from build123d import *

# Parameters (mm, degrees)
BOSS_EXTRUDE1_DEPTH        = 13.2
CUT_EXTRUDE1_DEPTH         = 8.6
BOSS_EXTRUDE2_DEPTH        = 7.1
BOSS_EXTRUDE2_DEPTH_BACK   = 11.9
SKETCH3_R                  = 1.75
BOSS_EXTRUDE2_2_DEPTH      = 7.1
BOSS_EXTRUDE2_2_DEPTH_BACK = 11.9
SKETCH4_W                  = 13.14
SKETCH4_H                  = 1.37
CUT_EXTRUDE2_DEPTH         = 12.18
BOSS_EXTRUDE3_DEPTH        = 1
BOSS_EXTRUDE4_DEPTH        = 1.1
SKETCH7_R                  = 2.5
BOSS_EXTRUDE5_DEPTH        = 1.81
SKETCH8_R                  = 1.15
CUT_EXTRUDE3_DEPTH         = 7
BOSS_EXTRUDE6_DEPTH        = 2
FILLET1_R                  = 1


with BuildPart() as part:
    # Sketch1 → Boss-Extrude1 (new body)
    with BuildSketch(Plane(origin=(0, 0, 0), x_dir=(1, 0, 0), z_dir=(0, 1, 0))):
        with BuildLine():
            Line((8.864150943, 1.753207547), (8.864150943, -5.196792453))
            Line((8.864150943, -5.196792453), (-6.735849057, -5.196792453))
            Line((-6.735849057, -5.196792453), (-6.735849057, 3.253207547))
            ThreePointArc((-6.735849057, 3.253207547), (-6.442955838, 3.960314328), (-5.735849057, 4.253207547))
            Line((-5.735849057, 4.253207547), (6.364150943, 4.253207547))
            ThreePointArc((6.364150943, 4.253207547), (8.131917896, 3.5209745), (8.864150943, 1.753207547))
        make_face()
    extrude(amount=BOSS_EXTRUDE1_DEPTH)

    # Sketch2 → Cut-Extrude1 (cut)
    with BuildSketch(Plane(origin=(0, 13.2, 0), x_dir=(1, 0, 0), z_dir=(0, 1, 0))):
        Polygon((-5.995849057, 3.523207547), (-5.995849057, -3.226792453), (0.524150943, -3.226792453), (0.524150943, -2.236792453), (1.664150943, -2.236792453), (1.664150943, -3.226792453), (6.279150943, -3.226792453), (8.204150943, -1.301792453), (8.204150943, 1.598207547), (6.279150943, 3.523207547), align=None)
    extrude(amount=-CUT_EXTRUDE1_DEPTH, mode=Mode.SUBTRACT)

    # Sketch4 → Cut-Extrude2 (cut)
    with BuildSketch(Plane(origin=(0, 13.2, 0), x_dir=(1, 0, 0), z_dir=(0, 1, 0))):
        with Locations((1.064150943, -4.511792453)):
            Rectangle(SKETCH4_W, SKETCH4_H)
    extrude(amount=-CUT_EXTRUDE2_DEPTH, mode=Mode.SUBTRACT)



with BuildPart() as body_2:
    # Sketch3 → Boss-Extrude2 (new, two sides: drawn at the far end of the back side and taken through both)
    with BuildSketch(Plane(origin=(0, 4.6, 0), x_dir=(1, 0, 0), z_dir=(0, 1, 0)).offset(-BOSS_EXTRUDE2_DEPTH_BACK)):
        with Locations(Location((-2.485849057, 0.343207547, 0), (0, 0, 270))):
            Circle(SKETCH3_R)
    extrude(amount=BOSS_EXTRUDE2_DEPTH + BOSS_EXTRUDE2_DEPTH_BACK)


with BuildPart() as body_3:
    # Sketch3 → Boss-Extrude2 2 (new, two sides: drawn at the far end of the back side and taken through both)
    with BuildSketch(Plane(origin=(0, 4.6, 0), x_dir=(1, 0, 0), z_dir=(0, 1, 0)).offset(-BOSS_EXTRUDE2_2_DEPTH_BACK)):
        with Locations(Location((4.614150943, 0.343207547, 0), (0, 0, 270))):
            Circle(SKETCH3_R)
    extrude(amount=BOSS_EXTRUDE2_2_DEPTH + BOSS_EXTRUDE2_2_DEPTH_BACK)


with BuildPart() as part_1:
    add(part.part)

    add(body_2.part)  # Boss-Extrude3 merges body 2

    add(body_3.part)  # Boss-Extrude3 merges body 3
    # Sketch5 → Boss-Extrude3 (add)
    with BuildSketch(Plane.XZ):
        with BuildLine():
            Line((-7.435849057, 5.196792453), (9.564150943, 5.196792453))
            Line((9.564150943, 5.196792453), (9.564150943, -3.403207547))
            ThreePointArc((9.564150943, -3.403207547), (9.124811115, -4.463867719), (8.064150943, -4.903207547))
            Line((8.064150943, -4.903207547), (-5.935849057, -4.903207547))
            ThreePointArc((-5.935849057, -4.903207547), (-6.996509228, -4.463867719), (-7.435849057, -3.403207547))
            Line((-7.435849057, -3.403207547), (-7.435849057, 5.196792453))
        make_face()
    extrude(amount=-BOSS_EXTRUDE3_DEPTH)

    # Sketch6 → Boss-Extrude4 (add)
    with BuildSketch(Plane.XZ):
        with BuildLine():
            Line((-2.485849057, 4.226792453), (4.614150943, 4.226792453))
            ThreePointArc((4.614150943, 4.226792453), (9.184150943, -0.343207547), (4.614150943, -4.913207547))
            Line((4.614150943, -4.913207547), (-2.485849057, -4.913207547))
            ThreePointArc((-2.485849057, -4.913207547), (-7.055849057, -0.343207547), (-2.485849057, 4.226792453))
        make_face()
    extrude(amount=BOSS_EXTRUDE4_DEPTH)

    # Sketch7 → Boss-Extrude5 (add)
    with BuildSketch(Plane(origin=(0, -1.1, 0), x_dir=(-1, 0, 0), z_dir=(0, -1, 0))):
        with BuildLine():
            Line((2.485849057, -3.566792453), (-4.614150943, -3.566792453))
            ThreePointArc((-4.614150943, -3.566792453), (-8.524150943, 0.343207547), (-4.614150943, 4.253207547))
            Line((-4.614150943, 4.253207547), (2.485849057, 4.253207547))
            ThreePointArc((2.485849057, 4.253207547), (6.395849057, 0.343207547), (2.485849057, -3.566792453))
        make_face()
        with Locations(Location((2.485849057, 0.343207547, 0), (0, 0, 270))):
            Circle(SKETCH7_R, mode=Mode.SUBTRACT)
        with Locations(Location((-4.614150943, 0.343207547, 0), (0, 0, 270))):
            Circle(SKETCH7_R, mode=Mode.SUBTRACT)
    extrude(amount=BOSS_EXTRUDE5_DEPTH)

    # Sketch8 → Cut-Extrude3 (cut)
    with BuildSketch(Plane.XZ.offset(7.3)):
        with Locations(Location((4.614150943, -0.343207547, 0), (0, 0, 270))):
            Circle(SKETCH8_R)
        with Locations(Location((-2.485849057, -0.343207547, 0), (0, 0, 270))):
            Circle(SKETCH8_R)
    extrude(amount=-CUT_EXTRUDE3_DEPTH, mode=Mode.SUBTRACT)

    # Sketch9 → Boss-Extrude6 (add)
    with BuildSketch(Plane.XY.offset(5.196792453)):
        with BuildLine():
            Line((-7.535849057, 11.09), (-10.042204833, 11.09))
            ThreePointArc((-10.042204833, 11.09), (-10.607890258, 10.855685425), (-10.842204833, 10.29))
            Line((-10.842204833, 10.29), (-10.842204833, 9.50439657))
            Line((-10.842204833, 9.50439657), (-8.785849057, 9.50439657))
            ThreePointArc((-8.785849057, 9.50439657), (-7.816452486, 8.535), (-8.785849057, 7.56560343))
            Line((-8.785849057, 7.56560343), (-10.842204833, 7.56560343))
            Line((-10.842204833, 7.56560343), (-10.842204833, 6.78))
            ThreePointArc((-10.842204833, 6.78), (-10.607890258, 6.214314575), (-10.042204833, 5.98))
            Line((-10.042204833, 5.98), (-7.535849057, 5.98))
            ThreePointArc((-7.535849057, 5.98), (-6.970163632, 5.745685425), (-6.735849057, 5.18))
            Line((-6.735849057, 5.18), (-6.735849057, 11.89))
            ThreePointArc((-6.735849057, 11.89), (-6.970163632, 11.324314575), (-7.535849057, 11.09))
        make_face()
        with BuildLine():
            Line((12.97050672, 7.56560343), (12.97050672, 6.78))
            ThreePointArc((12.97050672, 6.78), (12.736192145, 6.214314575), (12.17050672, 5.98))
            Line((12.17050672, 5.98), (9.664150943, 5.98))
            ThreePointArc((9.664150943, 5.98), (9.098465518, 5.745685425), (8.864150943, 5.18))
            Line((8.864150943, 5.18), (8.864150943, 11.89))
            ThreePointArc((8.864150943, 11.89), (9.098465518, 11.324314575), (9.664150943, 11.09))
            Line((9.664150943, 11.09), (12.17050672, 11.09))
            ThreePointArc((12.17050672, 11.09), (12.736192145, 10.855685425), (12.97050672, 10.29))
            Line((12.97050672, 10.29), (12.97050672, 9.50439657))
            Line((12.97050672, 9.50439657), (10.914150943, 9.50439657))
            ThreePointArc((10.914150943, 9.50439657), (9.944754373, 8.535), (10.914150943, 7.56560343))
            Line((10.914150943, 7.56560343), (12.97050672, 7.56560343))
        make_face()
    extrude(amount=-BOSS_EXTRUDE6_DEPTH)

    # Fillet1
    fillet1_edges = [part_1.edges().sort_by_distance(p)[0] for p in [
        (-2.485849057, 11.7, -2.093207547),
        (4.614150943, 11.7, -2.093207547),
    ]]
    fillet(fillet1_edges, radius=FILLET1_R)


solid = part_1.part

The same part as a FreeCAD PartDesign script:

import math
import FreeCAD as App
import Part
import Sketcher


def edges_at(feature, points):
    """Names of the edges that pass closest to the given points."""
    edges = feature.Shape.Edges
    near = lambda p: min(range(len(edges)), key=lambda i: edges[i].distToShape(Part.Vertex(*p))[0])
    return sorted({f"Edge{near(p) + 1}" for p in points})


def add_polygon(sketch, points):
    """Adds a closed chain of lines whose ends are joined by coincident constraints."""
    first, n = sketch.GeometryCount, len(points)
    for a, b in zip(points, points[1:] + points[:1]):
        sketch.addGeometry(Part.LineSegment(App.Vector(*a, 0), App.Vector(*b, 0)), False)
    for i in range(n):
        sketch.addConstraint(Sketcher.Constraint("Coincident", first + i, 2, first + (i + 1) % n, 1))

doc = App.newDocument("Part")
body = doc.addObject("PartDesign::Body", "Body")

# Sketch on XZ plane
sketch1 = body.newObject("Sketcher::SketchObject", "Sketch")
sketch1.AttachmentSupport = (doc.getObject("XZ_Plane"), [""])
sketch1.MapMode = "FlatFace"
sketch1.addGeometry([
    Part.LineSegment(App.Vector(8.9, 5.2, 0), App.Vector(8.9, -1.8, 0)),  # 0
    Part.ArcOfCircle(Part.Circle(App.Vector(6.4, -1.8, 0), App.Vector(0, 0, 1), 2.5), math.radians(-90), math.radians(0)),  # 1
    Part.LineSegment(App.Vector(6.4, -4.3, 0), App.Vector(-5.7, -4.3, 0)),  # 2
    Part.ArcOfCircle(Part.Circle(App.Vector(-5.7, -3.3, 0), App.Vector(0, 0, 1), 1), math.radians(-180), math.radians(-90)),  # 3
    Part.LineSegment(App.Vector(-6.7, -3.3, 0), App.Vector(-6.7, 5.2, 0)),  # 4
    Part.LineSegment(App.Vector(-6.7, 5.2, 0), App.Vector(8.9, 5.2, 0)),  # 5
], False)
sketch1.addConstraint([
    Sketcher.Constraint("Tangent", 0, 2, 1, 2),
    Sketcher.Constraint("Tangent", 1, 1, 2, 1),
    Sketcher.Constraint("Tangent", 2, 2, 3, 2),
    Sketcher.Constraint("Tangent", 3, 1, 4, 1),
    Sketcher.Constraint("Coincident", 4, 2, 5, 1),
    Sketcher.Constraint("Coincident", 5, 2, 0, 1),
    Sketcher.Constraint("Vertical", 0),
    Sketcher.Constraint("Horizontal", 2),
    Sketcher.Constraint("Vertical", 4),
    Sketcher.Constraint("Horizontal", 5),
    Sketcher.Constraint("Radius", 3, 1.0),
    Sketcher.Constraint("Radius", 1, 2.5),
    Sketcher.Constraint("DistanceX", 2, 2, 2, 1, 12.1),
    Sketcher.Constraint("DistanceY", 0, 2, 0, 1, 6.95),
    Sketcher.Constraint("DistanceX", -1, 1, 1, 3, 6.364151),
    Sketcher.Constraint("DistanceY", 1, 3, -1, 1, 1.753208),
])
pad1 = body.newObject("PartDesign::Pad", "Pad")
pad1.Profile = sketch1
pad1.Length = 13.2
pad1.Reversed = True

# Sketch on XZ plane
sketch2 = body.newObject("Sketcher::SketchObject", "Sketch001")
sketch2.AttachmentSupport = (doc.getObject("XZ_Plane"), [""])
sketch2.MapMode = "FlatFace"
sketch2.AttachmentOffset = App.Placement(App.Vector(0, 0, -13.2), App.Rotation())
add_polygon(sketch2, [(-6, -3.5), (-6, 3.2), (0.5, 3.2), (0.5, 2.2), (1.7, 2.2), (1.7, 3.2), (6.3, 3.2), (8.2, 1.3), (8.2, -1.6), (6.3, -3.5)])  # lines 0-9
sketch2.addConstraint([
    Sketcher.Constraint("Vertical", 0),
    Sketcher.Constraint("Horizontal", 1),
    Sketcher.Constraint("Vertical", 2),
    Sketcher.Constraint("Horizontal", 3),
    Sketcher.Constraint("Vertical", 4),
    Sketcher.Constraint("Horizontal", 5),
    Sketcher.Constraint("Vertical", 7),
    Sketcher.Constraint("Horizontal", 9),
    Sketcher.Constraint("Perpendicular", 6, 8),
    Sketcher.Constraint("Horizontal", 1, 2, 4, 2),
    Sketcher.Constraint("Vertical", 5, 2, 8, 2),
    Sketcher.Constraint("Equal", 6, 8),
    Sketcher.Constraint("DistanceY", 7, 2, 7, 1, 2.9),
    Sketcher.Constraint("DistanceX", 1, 1, 1, 2, 6.52),
    Sketcher.Constraint("DistanceX", 3, 1, 3, 2, 1.14),
    Sketcher.Constraint("DistanceY", 0, 1, 0, 2, 6.75),
    Sketcher.Constraint("DistanceY", 2, 2, 2, 1, 0.99),
    Sketcher.Constraint("DistanceX", 5, 1, 5, 2, 4.615),
    Sketcher.Constraint("DistanceX", 0, 2, -1, 1, 5.995849),
    Sketcher.Constraint("DistanceY", -1, 1, 0, 2, 3.226792),
])
pocket1 = body.newObject("PartDesign::Pocket", "Pocket")
pocket1.Profile = sketch2
pocket1.Length = 8.6
pocket1.Reversed = True

# Sketch on XZ plane
sketch3 = body.newObject("Sketcher::SketchObject", "Sketch002")
sketch3.AttachmentSupport = (doc.getObject("XZ_Plane"), [""])
sketch3.MapMode = "FlatFace"
sketch3.AttachmentOffset = App.Placement(App.Vector(0, 0, -13.2), App.Rotation())
add_polygon(sketch3, [(-5.5, 3.8), (-5.5, 5.2), (7.6, 5.2), (7.6, 3.8)])  # lines 0-3
sketch3.addConstraint([
    Sketcher.Constraint("Vertical", 0),
    Sketcher.Constraint("Horizontal", 1),
    Sketcher.Constraint("Vertical", 2),
    Sketcher.Constraint("Horizontal", 3),
    Sketcher.Constraint("DistanceX", 1, 1, 1, 2, 13.14),
    Sketcher.Constraint("DistanceY", 0, 1, 0, 2, 1.37),
    Sketcher.Constraint("DistanceX", 0, 2, -1, 1, 5.505849),
    Sketcher.Constraint("DistanceY", -1, 1, 0, 2, 5.196792),
])
pocket2 = body.newObject("PartDesign::Pocket", "Pocket001")
pocket2.Profile = sketch3
pocket2.Length = 12.18
pocket2.Reversed = True
body2 = doc.addObject("PartDesign::Body", "Body001")

# Sketch on XZ plane
sketch4 = body2.newObject("Sketcher::SketchObject", "Sketch003")
sketch4.AttachmentSupport = (doc.getObject("XZ_Plane001"), [""])
sketch4.MapMode = "FlatFace"
sketch4.AttachmentOffset = App.Placement(App.Vector(0, 0, -4.6), App.Rotation())
sketch4.addGeometry(Part.Circle(App.Vector(-2.5, -0.3, 0), App.Vector(0, 0, 1), 1.8), False)
sketch4.addConstraint([
    Sketcher.Constraint("Diameter", 0, 3.5),
    Sketcher.Constraint("DistanceX", 0, 3, -1, 1, 2.485849),
    Sketcher.Constraint("DistanceY", 0, 3, -1, 1, 0.343208),
])
pad2 = body2.newObject("PartDesign::Pad", "Pad001")
pad2.Profile = sketch4
pad2.Type = "TwoLengths"
pad2.Length = 7.1
pad2.Length2 = 11.9
pad2.Reversed = True
body3 = doc.addObject("PartDesign::Body", "Body002")

# Sketch on XZ plane
sketch5 = body3.newObject("Sketcher::SketchObject", "Sketch004")
sketch5.AttachmentSupport = (doc.getObject("XZ_Plane002"), [""])
sketch5.MapMode = "FlatFace"
sketch5.AttachmentOffset = App.Placement(App.Vector(0, 0, -4.6), App.Rotation())
sketch5.addGeometry(Part.Circle(App.Vector(4.6, -0.3, 0), App.Vector(0, 0, 1), 1.8), False)
sketch5.addConstraint([
    Sketcher.Constraint("Diameter", 0, 3.5),
    Sketcher.Constraint("DistanceX", -1, 1, 0, 3, 4.614151),
    Sketcher.Constraint("DistanceY", 0, 3, -1, 1, 0.343208),
])
pad3 = body3.newObject("PartDesign::Pad", "Pad002")
pad3.Profile = sketch5
pad3.Type = "TwoLengths"
pad3.Length = 7.1
pad3.Length2 = 11.9
pad3.Reversed = True
doc.recompute()

boolean = body.newObject("PartDesign::Boolean", "Boolean")
boolean.Type = "Fuse"
boolean.addObjects([body2])
doc.recompute()

boolean2 = body.newObject("PartDesign::Boolean", "Boolean001")
boolean2.Type = "Fuse"
boolean2.addObjects([body3])

# Sketch on XZ plane
sketch6 = body.newObject("Sketcher::SketchObject", "Sketch005")
sketch6.AttachmentSupport = (doc.getObject("XZ_Plane"), [""])
sketch6.MapMode = "FlatFace"
sketch6.addGeometry([
    Part.LineSegment(App.Vector(9.6, 5.2, 0), App.Vector(-7.4, 5.2, 0)),  # 0
    Part.LineSegment(App.Vector(-7.4, 5.2, 0), App.Vector(-7.4, -3.4, 0)),  # 1
    Part.ArcOfCircle(Part.Circle(App.Vector(-5.9, -3.4, 0), App.Vector(0, 0, 1), 1.5), math.radians(-180), math.radians(-90)),  # 2
    Part.LineSegment(App.Vector(-5.9, -4.9, 0), App.Vector(8.1, -4.9, 0)),  # 3
    Part.ArcOfCircle(Part.Circle(App.Vector(8.1, -3.4, 0), App.Vector(0, 0, 1), 1.5), math.radians(-90), math.radians(0)),  # 4
    Part.LineSegment(App.Vector(9.6, -3.4, 0), App.Vector(9.6, 5.2, 0)),  # 5
], False)
sketch6.addConstraint([
    Sketcher.Constraint("Coincident", 0, 2, 1, 1),
    Sketcher.Constraint("Tangent", 1, 2, 2, 1),
    Sketcher.Constraint("Tangent", 2, 2, 3, 1),
    Sketcher.Constraint("Tangent", 3, 2, 4, 1),
    Sketcher.Constraint("Tangent", 4, 2, 5, 1),
    Sketcher.Constraint("Coincident", 5, 2, 0, 1),
    Sketcher.Constraint("Horizontal", 0),
    Sketcher.Constraint("Vertical", 1),
    Sketcher.Constraint("Horizontal", 3),
    Sketcher.Constraint("Vertical", 5),
    Sketcher.Constraint("Equal", 2, 4),
    Sketcher.Constraint("Radius", 2, 1.5),
    Sketcher.Constraint("DistanceX", 0, 2, 0, 1, 17.0),
    Sketcher.Constraint("DistanceY", 1, 2, 1, 1, 8.6),
    Sketcher.Constraint("DistanceX", 2, 3, -1, 1, 5.935849),
    Sketcher.Constraint("DistanceY", 2, 3, -1, 1, 3.403208),
])
pad4 = body.newObject("PartDesign::Pad", "Pad003")
pad4.Profile = sketch6
pad4.Length = 1
pad4.Reversed = True

# Sketch on XZ plane
sketch7 = body.newObject("Sketcher::SketchObject", "Sketch006")
sketch7.AttachmentSupport = (doc.getObject("XZ_Plane"), [""])
sketch7.MapMode = "FlatFace"
sketch7.addGeometry([
    Part.LineSegment(App.Vector(4.6, 4.2, 0), App.Vector(-2.5, 4.2, 0)),
    Part.ArcOfCircle(Part.Circle(App.Vector(-2.5, -0.3, 0), App.Vector(0, 0, 1), 4.6), math.radians(90), math.radians(270)),
    Part.LineSegment(App.Vector(-2.5, -4.9, 0), App.Vector(4.6, -4.9, 0)),
    Part.ArcOfCircle(Part.Circle(App.Vector(4.6, -0.3, 0), App.Vector(0, 0, 1), 4.6), math.radians(-90), math.radians(90)),
], False)
sketch7.addConstraint([
    Sketcher.Constraint("Tangent", 0, 2, 1, 1),
    Sketcher.Constraint("Tangent", 1, 2, 2, 1),
    Sketcher.Constraint("Tangent", 2, 2, 3, 1),
    Sketcher.Constraint("Tangent", 3, 2, 0, 1),
    Sketcher.Constraint("Horizontal", 0),
    Sketcher.Constraint("Horizontal", 2),
    Sketcher.Constraint("Radius", 1, 4.57),
    Sketcher.Constraint("DistanceX", 0, 2, 0, 1, 7.1),
    Sketcher.Constraint("DistanceX", 1, 3, -1, 1, 2.485849),
    Sketcher.Constraint("DistanceY", 1, 3, -1, 1, 0.343208),
])
pad5 = body.newObject("PartDesign::Pad", "Pad004")
pad5.Profile = sketch7
pad5.Length = 1.1

# Sketch on XZ plane
sketch8 = body.newObject("Sketcher::SketchObject", "Sketch007")
sketch8.AttachmentSupport = (doc.getObject("XZ_Plane"), [""])
sketch8.MapMode = "FlatFace"
sketch8.AttachmentOffset = App.Placement(App.Vector(0, 0, 1.1), App.Rotation())
sketch8.addGeometry([
    Part.LineSegment(App.Vector(4.6, 3.6, 0), App.Vector(-2.5, 3.6, 0)),  # 0
    Part.ArcOfCircle(Part.Circle(App.Vector(-2.5, -0.3, 0), App.Vector(0, 0, 1), 3.9), math.radians(90), math.radians(270)),  # 1
    Part.LineSegment(App.Vector(-2.5, -4.3, 0), App.Vector(4.6, -4.3, 0)),  # 2
    Part.ArcOfCircle(Part.Circle(App.Vector(4.6, -0.3, 0), App.Vector(0, 0, 1), 3.9), math.radians(-90), math.radians(90)),  # 3
    Part.Circle(App.Vector(-2.5, -0.3, 0), App.Vector(0, 0, 1), 2.5),  # 4
    Part.Circle(App.Vector(4.6, -0.3, 0), App.Vector(0, 0, 1), 2.5),  # 5
], False)
sketch8.addConstraint([
    Sketcher.Constraint("Tangent", 0, 2, 1, 1),
    Sketcher.Constraint("Tangent", 1, 2, 2, 1),
    Sketcher.Constraint("Tangent", 2, 2, 3, 1),
    Sketcher.Constraint("Tangent", 3, 2, 0, 1),
    Sketcher.Constraint("Horizontal", 0),
    Sketcher.Constraint("Horizontal", 2),
    Sketcher.Constraint("Coincident", 4, 3, 1, 3),
    Sketcher.Constraint("Coincident", 5, 3, 3, 3),
    Sketcher.Constraint("Equal", 4, 5),
    Sketcher.Constraint("Diameter", 4, 5.0),
    Sketcher.Constraint("Radius", 1, 3.91),
    Sketcher.Constraint("DistanceX", 0, 2, 0, 1, 7.1),
    Sketcher.Constraint("DistanceX", 1, 3, -1, 1, 2.485849),
    Sketcher.Constraint("DistanceY", 1, 3, -1, 1, 0.343208),
])
pad6 = body.newObject("PartDesign::Pad", "Pad005")
pad6.Profile = sketch8
pad6.Length = 1.81

# Sketch on XZ plane
sketch9 = body.newObject("Sketcher::SketchObject", "Sketch008")
sketch9.AttachmentSupport = (doc.getObject("XZ_Plane"), [""])
sketch9.MapMode = "FlatFace"
sketch9.AttachmentOffset = App.Placement(App.Vector(0, 0, 7.3), App.Rotation())
sketch9.addGeometry([
    Part.Circle(App.Vector(4.6, -0.3, 0), App.Vector(0, 0, 1), 1.1),
    Part.Circle(App.Vector(-2.5, -0.3, 0), App.Vector(0, 0, 1), 1.1),
], False)
sketch9.addConstraint([
    Sketcher.Constraint("Equal", 0, 1),
    Sketcher.Constraint("Horizontal", 0, 3, 1, 3),
    Sketcher.Constraint("Diameter", 0, 2.3),
    Sketcher.Constraint("DistanceX", 1, 3, 0, 3, 7.1),
    Sketcher.Constraint("DistanceX", -1, 1, 0, 3, 4.614151),
    Sketcher.Constraint("DistanceY", 0, 3, -1, 1, 0.343208),
])
pocket3 = body.newObject("PartDesign::Pocket", "Pocket002")
pocket3.Profile = sketch9
pocket3.Length = 7

# Sketch on XY plane
sketch10 = body.newObject("Sketcher::SketchObject", "Sketch009")
sketch10.AttachmentSupport = (doc.getObject("XY_Plane"), [""])
sketch10.MapMode = "FlatFace"
sketch10.AttachmentOffset = App.Placement(App.Vector(0, 0, 5.196792), App.Rotation())
sketch10.addGeometry([
    Part.LineSegment(App.Vector(-7.5, 11.1, 0), App.Vector(-10, 11.1, 0)),  # 0
    Part.ArcOfCircle(Part.Circle(App.Vector(-10, 10.3, 0), App.Vector(0, 0, 1), 0.8), math.radians(90), math.radians(180)),  # 1
    Part.LineSegment(App.Vector(-10.8, 10.3, 0), App.Vector(-10.8, 9.5, 0)),  # 2
    Part.LineSegment(App.Vector(-10.8, 9.5, 0), App.Vector(-8.8, 9.5, 0)),  # 3
    Part.ArcOfCircle(Part.Circle(App.Vector(-8.8, 8.5, 0), App.Vector(0, 0, 1), 1), math.radians(-90), math.radians(90)),  # 4
    Part.LineSegment(App.Vector(-8.8, 7.6, 0), App.Vector(-10.8, 7.6, 0)),  # 5
    Part.LineSegment(App.Vector(-10.8, 7.6, 0), App.Vector(-10.8, 6.8, 0)),  # 6
    Part.ArcOfCircle(Part.Circle(App.Vector(-10, 6.8, 0), App.Vector(0, 0, 1), 0.8), math.radians(180), math.radians(270)),  # 7
    Part.LineSegment(App.Vector(-10, 6, 0), App.Vector(-7.5, 6, 0)),  # 8
    Part.ArcOfCircle(Part.Circle(App.Vector(-7.5, 5.2, 0), App.Vector(0, 0, 1), 0.8), math.radians(0), math.radians(90)),  # 9
    Part.LineSegment(App.Vector(-6.7, 5.2, 0), App.Vector(-6.7, 11.9, 0)),  # 10
    Part.ArcOfCircle(Part.Circle(App.Vector(-7.5, 11.9, 0), App.Vector(0, 0, 1), 0.8), math.radians(-90), math.radians(0)),  # 11
    Part.LineSegment(App.Vector(13, 6.8, 0), App.Vector(13, 7.6, 0)),  # 12
    Part.LineSegment(App.Vector(13, 7.6, 0), App.Vector(10.9, 7.6, 0)),  # 13
    Part.ArcOfCircle(Part.Circle(App.Vector(10.9, 8.5, 0), App.Vector(0, 0, 1), 1), math.radians(90), math.radians(270)),  # 14
    Part.LineSegment(App.Vector(10.9, 9.5, 0), App.Vector(13, 9.5, 0)),  # 15
    Part.LineSegment(App.Vector(13, 9.5, 0), App.Vector(13, 10.3, 0)),  # 16
    Part.ArcOfCircle(Part.Circle(App.Vector(12.2, 10.3, 0), App.Vector(0, 0, 1), 0.8), math.radians(0), math.radians(90)),  # 17
    Part.LineSegment(App.Vector(12.2, 11.1, 0), App.Vector(9.7, 11.1, 0)),  # 18
    Part.ArcOfCircle(Part.Circle(App.Vector(9.7, 11.9, 0), App.Vector(0, 0, 1), 0.8), math.radians(180), math.radians(270)),  # 19
    Part.LineSegment(App.Vector(8.9, 11.9, 0), App.Vector(8.9, 5.2, 0)),  # 20
    Part.ArcOfCircle(Part.Circle(App.Vector(9.7, 5.2, 0), App.Vector(0, 0, 1), 0.8), math.radians(90), math.radians(180)),  # 21
    Part.LineSegment(App.Vector(9.7, 6, 0), App.Vector(12.2, 6, 0)),  # 22
    Part.ArcOfCircle(Part.Circle(App.Vector(12.2, 6.8, 0), App.Vector(0, 0, 1), 0.8), math.radians(-90), math.radians(0)),  # 23
], False)
sketch10.addConstraint([
    Sketcher.Constraint("Tangent", 0, 2, 1, 1),
    Sketcher.Constraint("Tangent", 1, 2, 2, 1),
    Sketcher.Constraint("Coincident", 2, 2, 3, 1),
    Sketcher.Constraint("Tangent", 3, 2, 4, 2),
    Sketcher.Constraint("Tangent", 4, 1, 5, 1),
    Sketcher.Constraint("Coincident", 5, 2, 6, 1),
    Sketcher.Constraint("Tangent", 6, 2, 7, 1),
    Sketcher.Constraint("Tangent", 7, 2, 8, 1),
    Sketcher.Constraint("Tangent", 8, 2, 9, 2),
    Sketcher.Constraint("Tangent", 9, 1, 10, 1),
    Sketcher.Constraint("Tangent", 10, 2, 11, 2),
    Sketcher.Constraint("Tangent", 11, 1, 0, 1),
    Sketcher.Constraint("Coincident", 12, 2, 13, 1),
    Sketcher.Constraint("Tangent", 13, 2, 14, 2),
    Sketcher.Constraint("Tangent", 14, 1, 15, 1),
    Sketcher.Constraint("Coincident", 15, 2, 16, 1),
    Sketcher.Constraint("Tangent", 16, 2, 17, 1),
    Sketcher.Constraint("Tangent", 17, 2, 18, 1),
    Sketcher.Constraint("Tangent", 18, 2, 19, 2),
    Sketcher.Constraint("Tangent", 19, 1, 20, 1),
    Sketcher.Constraint("Tangent", 20, 2, 21, 2),
    Sketcher.Constraint("Tangent", 21, 1, 22, 1),
    Sketcher.Constraint("Tangent", 22, 2, 23, 1),
    Sketcher.Constraint("Tangent", 23, 2, 12, 1),
    Sketcher.Constraint("Horizontal", 0),
    Sketcher.Constraint("Vertical", 2),
    Sketcher.Constraint("Horizontal", 3),
    Sketcher.Constraint("Horizontal", 5),
    Sketcher.Constraint("Vertical", 6),
    Sketcher.Constraint("Horizontal", 8),
    Sketcher.Constraint("Vertical", 10),
    Sketcher.Constraint("Vertical", 12),
    Sketcher.Constraint("Horizontal", 13),
    Sketcher.Constraint("Horizontal", 15),
    Sketcher.Constraint("Vertical", 16),
    Sketcher.Constraint("Horizontal", 18),
    Sketcher.Constraint("Vertical", 20),
    Sketcher.Constraint("Horizontal", 22),
    Sketcher.Constraint("Equal", 1, 7),
    Sketcher.Constraint("Equal", 7, 9),
    Sketcher.Constraint("Equal", 9, 11),
    Sketcher.Constraint("Equal", 4, 14),
    Sketcher.Constraint("Equal", 11, 17),
    Sketcher.Constraint("Equal", 17, 19),
    Sketcher.Constraint("Equal", 19, 21),
    Sketcher.Constraint("Equal", 21, 23),
    Sketcher.Constraint("Horizontal", 4, 3, 14, 3),
    Sketcher.Constraint("Horizontal", 1, 3, 17, 3),
    Sketcher.Constraint("Horizontal", 9, 3, 21, 3),
    Sketcher.Constraint("Vertical", 1, 3, 7, 3),
    Sketcher.Constraint("Vertical", 17, 3, 23, 3),
    Sketcher.Constraint("Equal", 5, 13),
    Sketcher.Constraint("Equal", 8, 18),
    Sketcher.Constraint("Equal", 2, 6),
    Sketcher.Constraint("Radius", 1, 0.8),
    Sketcher.Constraint("DistanceY", 10, 1, 10, 2, 6.71),
    Sketcher.Constraint("DistanceX", 4, 3, 14, 3, 19.7),
    Sketcher.Constraint("DistanceX", 11, 3, 19, 3, 17.2),
    Sketcher.Constraint("DistanceY", -1, 1, 1, 3, 10.29),
    Sketcher.Constraint("Radius", 4, 0.969397),
    Sketcher.Constraint("DistanceX", 0, 2, 0, 1, 2.506356),
    Sketcher.Constraint("DistanceX", 4, 3, -1, 1, 8.785849),
])
pad7 = body.newObject("PartDesign::Pad", "Pad006")
pad7.Profile = sketch10
pad7.Length = 2
pad7.Reversed = True
doc.recompute()

fillet = body.newObject("PartDesign::Fillet", "Fillet")
fillet.Base = (pad7, edges_at(pad7, [(-2.486, 11.7, -2.093), (4.614, 11.7, -2.093)]))
fillet.Radius = 1

doc.recompute()
